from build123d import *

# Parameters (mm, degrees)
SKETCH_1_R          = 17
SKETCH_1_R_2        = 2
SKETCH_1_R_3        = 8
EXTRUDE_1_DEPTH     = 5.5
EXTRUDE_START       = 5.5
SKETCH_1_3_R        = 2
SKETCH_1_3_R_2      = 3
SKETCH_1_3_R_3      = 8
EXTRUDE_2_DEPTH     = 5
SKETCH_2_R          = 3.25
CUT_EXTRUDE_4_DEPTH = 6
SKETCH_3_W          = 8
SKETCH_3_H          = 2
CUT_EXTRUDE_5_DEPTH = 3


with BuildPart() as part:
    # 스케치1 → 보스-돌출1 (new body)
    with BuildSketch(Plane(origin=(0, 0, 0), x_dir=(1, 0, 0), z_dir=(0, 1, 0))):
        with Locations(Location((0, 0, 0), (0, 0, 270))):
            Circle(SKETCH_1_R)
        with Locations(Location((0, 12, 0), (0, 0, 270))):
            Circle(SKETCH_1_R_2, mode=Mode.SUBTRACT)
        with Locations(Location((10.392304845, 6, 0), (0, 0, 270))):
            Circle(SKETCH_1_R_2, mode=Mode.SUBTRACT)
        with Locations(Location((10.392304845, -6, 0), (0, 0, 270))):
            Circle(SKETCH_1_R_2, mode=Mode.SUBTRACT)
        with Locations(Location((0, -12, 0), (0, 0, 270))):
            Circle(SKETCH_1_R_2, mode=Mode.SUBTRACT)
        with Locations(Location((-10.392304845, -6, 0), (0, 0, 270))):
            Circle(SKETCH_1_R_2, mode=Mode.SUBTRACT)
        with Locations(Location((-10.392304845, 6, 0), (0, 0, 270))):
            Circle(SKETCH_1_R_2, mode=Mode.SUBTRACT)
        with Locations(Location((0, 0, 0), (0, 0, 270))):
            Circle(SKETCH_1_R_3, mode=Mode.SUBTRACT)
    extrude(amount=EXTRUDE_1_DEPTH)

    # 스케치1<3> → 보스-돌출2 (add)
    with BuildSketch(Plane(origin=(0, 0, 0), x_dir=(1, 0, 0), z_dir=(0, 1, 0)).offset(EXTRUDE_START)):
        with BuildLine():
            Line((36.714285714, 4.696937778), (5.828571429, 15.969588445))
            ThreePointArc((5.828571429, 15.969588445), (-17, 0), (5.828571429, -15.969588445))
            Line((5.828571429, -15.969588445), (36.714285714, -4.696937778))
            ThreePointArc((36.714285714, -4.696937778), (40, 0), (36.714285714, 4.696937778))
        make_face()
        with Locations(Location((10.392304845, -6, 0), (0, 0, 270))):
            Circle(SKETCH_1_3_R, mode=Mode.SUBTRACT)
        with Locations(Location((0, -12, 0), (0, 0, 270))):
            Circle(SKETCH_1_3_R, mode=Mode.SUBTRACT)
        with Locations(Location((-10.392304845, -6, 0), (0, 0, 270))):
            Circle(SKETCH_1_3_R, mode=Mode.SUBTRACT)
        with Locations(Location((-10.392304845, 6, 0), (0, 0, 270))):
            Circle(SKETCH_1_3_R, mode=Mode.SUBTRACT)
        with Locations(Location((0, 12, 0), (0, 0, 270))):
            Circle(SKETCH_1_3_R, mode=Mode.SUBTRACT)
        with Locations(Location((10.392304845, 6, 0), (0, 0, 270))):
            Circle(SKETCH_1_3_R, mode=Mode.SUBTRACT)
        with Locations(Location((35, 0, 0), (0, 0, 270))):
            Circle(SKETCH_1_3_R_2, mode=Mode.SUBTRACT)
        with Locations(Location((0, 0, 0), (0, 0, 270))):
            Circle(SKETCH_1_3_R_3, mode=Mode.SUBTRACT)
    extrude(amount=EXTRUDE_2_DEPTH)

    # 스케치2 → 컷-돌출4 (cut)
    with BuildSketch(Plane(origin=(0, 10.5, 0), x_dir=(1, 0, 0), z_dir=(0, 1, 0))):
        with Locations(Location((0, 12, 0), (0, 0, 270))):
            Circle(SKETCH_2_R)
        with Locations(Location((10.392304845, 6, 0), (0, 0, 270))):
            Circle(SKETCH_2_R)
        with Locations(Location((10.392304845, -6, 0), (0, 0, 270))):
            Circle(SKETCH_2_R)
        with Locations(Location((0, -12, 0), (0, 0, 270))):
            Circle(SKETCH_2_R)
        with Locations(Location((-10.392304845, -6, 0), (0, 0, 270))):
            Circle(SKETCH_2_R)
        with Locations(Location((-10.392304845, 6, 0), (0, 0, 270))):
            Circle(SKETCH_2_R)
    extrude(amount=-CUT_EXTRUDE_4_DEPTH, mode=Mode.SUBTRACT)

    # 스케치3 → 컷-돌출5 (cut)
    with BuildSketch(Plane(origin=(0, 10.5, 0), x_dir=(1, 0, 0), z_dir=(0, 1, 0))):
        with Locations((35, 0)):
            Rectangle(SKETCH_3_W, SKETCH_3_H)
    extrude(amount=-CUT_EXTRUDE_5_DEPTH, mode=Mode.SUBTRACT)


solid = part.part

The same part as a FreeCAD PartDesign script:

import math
import FreeCAD as App
import Part
import Sketcher
from FreeCAD import Vector
Q = App.Units.Quantity

doc = App.newDocument("Part")
body = doc.addObject("PartDesign::Body", "Body")

# Sketch on XZ plane
sketch1 = body.newObject("Sketcher::SketchObject", "Sketch")
sketch1.AttachmentSupport = (doc.getObject("XZ_Plane"), [""])
sketch1.MapMode = "FlatFace"
sketch1.addGeometry([
    Part.Circle(Vector(0, 0, 0), Vector(0, 0, 1), 17),  # 0
    Part.Circle(Vector(-10.392305, -6, 0), Vector(0, 0, 1), 2),  # 1
    Part.Circle(Vector(0, -12, 0), Vector(0, 0, 1), 2),  # 2
    Part.Circle(Vector(-10.392305, 6, 0), Vector(0, 0, 1), 2),  # 3
    Part.Circle(Vector(10.392305, -6, 0), Vector(0, 0, 1), 2),  # 4
    Part.Circle(Vector(0, 0, 0), Vector(0, 0, 1), 8),  # 5
    Part.Circle(Vector(0, 12, 0), Vector(0, 0, 1), 2),  # 6
    Part.Circle(Vector(10.392305, 6, 0), Vector(0, 0, 1), 2),  # 7
], False)
sketch1.addConstraint([
    Sketcher.Constraint("Coincident", 0, 3, -1, 1),
    Sketcher.Constraint("Coincident", 5, 3, -1, 1),
    Sketcher.Constraint("Equal", 1, 2),
    Sketcher.Constraint("Equal", 2, 3),
    Sketcher.Constraint("Equal", 3, 4),
    Sketcher.Constraint("Equal", 4, 6),
    Sketcher.Constraint("Equal", 6, 7),
    Sketcher.Constraint("Symmetric", 3, 3, 4, 3, -1, 1),
    Sketcher.Constraint("Symmetric", 2, 3, 6, 3, -1, 1),
    Sketcher.Constraint("Symmetric", 1, 3, 7, 3, -1, 1),
    Sketcher.Constraint("Symmetric", 1, 3, 4, 3, -2),
    Sketcher.Constraint("PointOnObject", 2, 3, -2),
    Sketcher.Constraint("Diameter", 0, Q("34 mm")),
    Sketcher.Constraint("Diameter", 1, Q("4 mm")),
    Sketcher.Constraint("Diameter", 5, Q("16 mm")),
    Sketcher.Constraint("DistanceY", 1, 3, -1, 1, Q("6 mm")),
    Sketcher.Constraint("DistanceY", 2, 3, -1, 1, Q("12 mm")),
    Sketcher.Constraint("DistanceX", 1, 3, 4, 3, Q("20.78461 mm")),
])
pad1 = body.newObject("PartDesign::Pad", "Pad")
pad1.Profile = sketch1
pad1.Length = 5.5
pad1.Reversed = True

# Sketch on XZ plane
sketch2 = body.newObject("Sketcher::SketchObject", "Sketch001")
sketch2.AttachmentSupport = (doc.getObject("XZ_Plane"), [""])
sketch2.MapMode = "FlatFace"
sketch2.AttachmentOffset = App.Placement(Vector(0, 0, -5.5), App.Rotation())
sketch2.addGeometry([
    Part.LineSegment(Vector(36.714286, -4.696938, 0), Vector(5.828571, -15.969588, 0)),  # 0
    Part.ArcOfCircle(Part.Circle(Vector(0, 0, 0), Vector(0, 0, 1), 17), math.radians(69.948957), math.radians(290.051043)),  # 1
    Part.LineSegment(Vector(5.828571, 15.969588, 0), Vector(36.714286, 4.696938, 0)),  # 2
    Part.ArcOfCircle(Part.Circle(Vector(35, 0, 0), Vector(0, 0, 1), 5), math.radians(-69.948957), math.radians(69.948957)),  # 3
    Part.Circle(Vector(0, 12, 0), Vector(0, 0, 1), 2),  # 4
    Part.Circle(Vector(-10.392305, 6, 0), Vector(0, 0, 1), 2),  # 5
    Part.Circle(Vector(10.392305, 6, 0), Vector(0, 0, 1), 2),  # 6
    Part.Circle(Vector(0, 0, 0), Vector(0, 0, 1), 8),  # 7
    Part.Circle(Vector(-10.392305, -6, 0), Vector(0, 0, 1), 2),  # 8
    Part.Circle(Vector(10.392305, -6, 0), Vector(0, 0, 1), 2),  # 9
    Part.Circle(Vector(0, -12, 0), Vector(0, 0, 1), 2),  # 10
    Part.Circle(Vector(35, 0, 0), Vector(0, 0, 1), 3),  # 11
], False)
sketch2.addConstraint([
    Sketcher.Constraint("Tangent", 0, 2, 1, 2),
    Sketcher.Constraint("Tangent", 1, 1, 2, 1),
    Sketcher.Constraint("Tangent", 2, 2, 3, 2),
    Sketcher.Constraint("Tangent", 3, 1, 0, 1),
    Sketcher.Constraint("Coincident", 1, 3, -1, 1),
    Sketcher.Constraint("Coincident", 7, 3, -1, 1),
    Sketcher.Constraint("Coincident", 11, 3, 3, 3),
    Sketcher.Constraint("Equal", 4, 5),
    Sketcher.Constraint("Equal", 5, 6),
    Sketcher.Constraint("Equal", 6, 8),
    Sketcher.Constraint("Equal", 8, 9),
    Sketcher.Constraint("Equal", 9, 10),
    Sketcher.Constraint("Symmetric", 6, 3, 8, 3, -1, 1),
    Sketcher.Constraint("Symmetric", 5, 3, 9, 3, -1, 1),
    Sketcher.Constraint("Symmetric", 4, 3, 10, 3, -1, 1),
    Sketcher.Constraint("Symmetric", 5, 3, 6, 3, -2),
    Sketcher.Constraint("PointOnObject", 3, 3, -1),
    Sketcher.Constraint("PointOnObject", 4, 3, -2),
    Sketcher.Constraint("Diameter", 4, Q("4 mm")),
    Sketcher.Constraint("Diameter", 7, Q("16 mm")),
    Sketcher.Constraint("Diameter", 11, Q("6 mm")),
    Sketcher.Constraint("Radius", 1, Q("17 mm")),
    Sketcher.Constraint("Radius", 3, Q("5 mm")),
    Sketcher.Constraint("DistanceX", -1, 1, 3, 3, Q("35 mm")),
    Sketcher.Constraint("DistanceY", -1, 1, 4, 3, Q("12 mm")),
    Sketcher.Constraint("DistanceY", -1, 1, 5, 3, Q("6 mm")),
    Sketcher.Constraint("DistanceX", 5, 3, 6, 3, Q("20.78461 mm")),
])
pad2 = body.newObject("PartDesign::Pad", "Pad001")
pad2.Profile = sketch2
pad2.Length = 5
pad2.Reversed = True

# Sketch on XZ plane
sketch3 = body.newObject("Sketcher::SketchObject", "Sketch002")
sketch3.AttachmentSupport = (doc.getObject("XZ_Plane"), [""])
sketch3.MapMode = "FlatFace"
sketch3.AttachmentOffset = App.Placement(Vector(0, 0, -10.5), App.Rotation())
sketch3.addGeometry([
    Part.Circle(Vector(0, -12, 0), Vector(0, 0, 1), 3.25),  # 0
    Part.Circle(Vector(10.392305, -6, 0), Vector(0, 0, 1), 3.25),  # 1
    Part.Circle(Vector(10.392305, 6, 0), Vector(0, 0, 1), 3.25),  # 2
    Part.Circle(Vector(0, 12, 0), Vector(0, 0, 1), 3.25),  # 3
    Part.Circle(Vector(-10.392305, 6, 0), Vector(0, 0, 1), 3.25),  # 4
    Part.Circle(Vector(-10.392305, -6, 0), Vector(0, 0, 1), 3.25),  # 5
], False)
sketch3.addConstraint([
    Sketcher.Constraint("Equal", 0, 1),
    Sketcher.Constraint("Equal", 1, 2),
    Sketcher.Constraint("Equal", 2, 3),
    Sketcher.Constraint("Equal", 3, 4),
    Sketcher.Constraint("Equal", 4, 5),
    Sketcher.Constraint("Symmetric", 0, 3, 3, 3, -1, 1),
    Sketcher.Constraint("Symmetric", 1, 3, 4, 3, -1, 1),
    Sketcher.Constraint("Symmetric", 2, 3, 5, 3, -1, 1),
    Sketcher.Constraint("Symmetric", 2, 3, 4, 3, -2),
    Sketcher.Constraint("PointOnObject", 0, 3, -2),
    Sketcher.Constraint("Diameter", 0, Q("6.5 mm")),
    Sketcher.Constraint("DistanceY", 0, 3, -1, 1, Q("12 mm")),
    Sketcher.Constraint("DistanceY", 1, 3, -1, 1, Q("6 mm")),
    Sketcher.Constraint("DistanceX", 4, 3, 2, 3, Q("20.78461 mm")),
])
pocket1 = body.newObject("PartDesign::Pocket", "Pocket")
pocket1.Profile = sketch3
pocket1.Length = 6
pocket1.Reversed = True

# Sketch on XZ plane
sketch4 = body.newObject("Sketcher::SketchObject", "Sketch003")
sketch4.AttachmentSupport = (doc.getObject("XZ_Plane"), [""])
sketch4.MapMode = "FlatFace"
sketch4.AttachmentOffset = App.Placement(Vector(0, 0, -10.5), App.Rotation())
sketch4.addGeometry([
    Part.LineSegment(Vector(31, -1, 0), Vector(31, 1, 0)),
    Part.LineSegment(Vector(31, 1, 0), Vector(39, 1, 0)),
    Part.LineSegment(Vector(39, 1, 0), Vector(39, -1, 0)),
    Part.LineSegment(Vector(39, -1, 0), Vector(31, -1, 0)),
], False)
sketch4.addConstraint([
    Sketcher.Constraint("Coincident", 0, 2, 1, 1),
    Sketcher.Constraint("Coincident", 1, 2, 2, 1),
    Sketcher.Constraint("Coincident", 2, 2, 3, 1),
    Sketcher.Constraint("Coincident", 3, 2, 0, 1),
    Sketcher.Constraint("Vertical", 0),
    Sketcher.Constraint("Horizontal", 1),
    Sketcher.Constraint("Vertical", 2),
    Sketcher.Constraint("Horizontal", 3),
    Sketcher.Constraint("DistanceX", 1, 1, 1, 2, Q("8 mm")),
    Sketcher.Constraint("DistanceY", 0, 1, 0, 2, Q("2 mm")),
    Sketcher.Constraint("DistanceX", -1, 1, 0, 2, Q("31 mm")),
    Sketcher.Constraint("DistanceY", -1, 1, 0, 2, Q("1 mm")),
])
pocket2 = body.newObject("PartDesign::Pocket", "Pocket001")
pocket2.Profile = sketch4
pocket2.Length = 3
pocket2.Reversed = True

doc.recompute()
